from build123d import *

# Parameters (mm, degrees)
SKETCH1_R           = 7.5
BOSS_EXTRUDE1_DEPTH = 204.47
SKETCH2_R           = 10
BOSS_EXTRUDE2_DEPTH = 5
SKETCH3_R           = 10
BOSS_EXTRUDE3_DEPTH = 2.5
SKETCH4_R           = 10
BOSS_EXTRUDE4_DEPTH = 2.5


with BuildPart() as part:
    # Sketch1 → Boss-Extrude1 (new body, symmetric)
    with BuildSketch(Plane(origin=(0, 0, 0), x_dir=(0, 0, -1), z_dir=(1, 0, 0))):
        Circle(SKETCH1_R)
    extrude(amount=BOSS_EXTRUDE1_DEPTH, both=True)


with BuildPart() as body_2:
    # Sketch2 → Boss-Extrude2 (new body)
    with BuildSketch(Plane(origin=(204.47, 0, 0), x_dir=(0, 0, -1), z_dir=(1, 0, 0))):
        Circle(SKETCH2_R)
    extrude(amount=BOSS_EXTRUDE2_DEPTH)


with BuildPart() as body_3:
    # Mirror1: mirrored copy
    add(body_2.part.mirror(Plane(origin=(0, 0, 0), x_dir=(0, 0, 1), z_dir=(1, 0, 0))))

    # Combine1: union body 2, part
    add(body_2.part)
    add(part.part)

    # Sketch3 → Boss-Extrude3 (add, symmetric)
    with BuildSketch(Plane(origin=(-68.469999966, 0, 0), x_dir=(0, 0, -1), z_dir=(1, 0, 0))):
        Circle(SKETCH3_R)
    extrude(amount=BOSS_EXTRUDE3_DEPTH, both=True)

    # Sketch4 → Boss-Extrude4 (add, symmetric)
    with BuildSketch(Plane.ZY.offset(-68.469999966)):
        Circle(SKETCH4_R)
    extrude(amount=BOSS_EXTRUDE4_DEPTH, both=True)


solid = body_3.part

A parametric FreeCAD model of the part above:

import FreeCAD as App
import Part
import Sketcher
Q = App.Units.Quantity

doc = App.newDocument("Part")
body = doc.addObject("PartDesign::Body", "Body")

# Sketch on YZ plane
sketch1 = doc.addObject("Sketcher::SketchObject", "Sketch")
body.addObject(sketch1)
sketch1.AttachmentSupport = (doc.YZ_Plane, [""])
sketch1.MapMode = "FlatFace"
sketch1.addGeometry(Part.Circle(App.Vector(0, 0, 0), App.Vector(0, 0, 1), 8), False)
sketch1.addConstraint(Sketcher.Constraint("Coincident", 0, 3, -1, 1))
sketch1.addConstraint(Sketcher.Constraint("Diameter", 0, Q("15 mm")))
pad1 = doc.addObject("PartDesign::Pad", "Pad")
body.addObject(pad1)
pad1.Profile = sketch1
pad1.Length = 408.94
pad1.Midplane = True
body2 = doc.addObject("PartDesign::Body", "Body001")

# Sketch on YZ plane
sketch2 = doc.addObject("Sketcher::SketchObject", "Sketch001")
body2.addObject(sketch2)
sketch2.AttachmentSupport = (doc.getObject("YZ_Plane001"), [""])
sketch2.MapMode = "FlatFace"
sketch2.AttachmentOffset = App.Placement(App.Vector(0, 0, 204.47), App.Rotation())
sketch2.addGeometry(Part.Circle(App.Vector(0, 0, 0), App.Vector(0, 0, 1), 10), False)
sketch2.addConstraint(Sketcher.Constraint("Coincident", 0, 3, -1, 1))
sketch2.addConstraint(Sketcher.Constraint("Diameter", 0, Q("20 mm")))
pad2 = doc.addObject("PartDesign::Pad", "Pad001")
body2.addObject(pad2)
pad2.Profile = sketch2
pad2.Length = 5
body3 = doc.addObject("PartDesign::Body", "Body002")
body3.AllowCompound = True
doc.recompute()

mirroring = doc.addObject("Part::Mirroring", "Mirroring")
mirroring.Source = body2
mirroring.Base = App.Vector(0, 0, 0)
mirroring.Normal = App.Vector(1, 0, 0)
body3.BaseFeature = mirroring
doc.recompute()

boolean = doc.addObject("PartDesign::Boolean", "Boolean")
body3.addObject(boolean)
boolean.Type = "Fuse"
boolean.addObjects([body2])
doc.recompute()

boolean2 = doc.addObject("PartDesign::Boolean", "Boolean001")
body3.addObject(boolean2)
boolean2.Type = "Fuse"
boolean2.addObjects([body])

# Sketch on YZ plane
sketch3 = doc.addObject("Sketcher::SketchObject", "Sketch002")
body3.addObject(sketch3)
sketch3.AttachmentSupport = (doc.getObject("YZ_Plane002"), [""])
sketch3.MapMode = "FlatFace"
sketch3.AttachmentOffset = App.Placement(App.Vector(0, 0, -68.47), App.Rotation())
sketch3.addGeometry(Part.Circle(App.Vector(0, 0, 0), App.Vector(0, 0, 1), 10), False)
sketch3.addConstraint(Sketcher.Constraint("Coincident", 0, 3, -1, 1))
sketch3.addConstraint(Sketcher.Constraint("Diameter", 0, Q("20 mm")))
pad3 = doc.addObject("PartDesign::Pad", "Pad002")
body3.addObject(pad3)
pad3.Profile = sketch3
pad3.Length = 5
pad3.Midplane = True

# Sketch on YZ plane
sketch4 = doc.addObject("Sketcher::SketchObject", "Sketch003")
body3.addObject(sketch4)
sketch4.AttachmentSupport = (doc.getObject("YZ_Plane002"), [""])
sketch4.MapMode = "FlatFace"
sketch4.AttachmentOffset = App.Placement(App.Vector(0, 0, 68.47), App.Rotation())
sketch4.addGeometry(Part.Circle(App.Vector(0, 0, 0), App.Vector(0, 0, 1), 10), False)
sketch4.addConstraint(Sketcher.Constraint("Coincident", 0, 3, -1, 1))
sketch4.addConstraint(Sketcher.Constraint("Diameter", 0, Q("20 mm")))
pad4 = doc.addObject("PartDesign::Pad", "Pad003")
body3.addObject(pad4)
pad4.Profile = sketch4
pad4.Length = 5
pad4.Midplane = True
mirroring.Visibility = False

doc.recompute()
